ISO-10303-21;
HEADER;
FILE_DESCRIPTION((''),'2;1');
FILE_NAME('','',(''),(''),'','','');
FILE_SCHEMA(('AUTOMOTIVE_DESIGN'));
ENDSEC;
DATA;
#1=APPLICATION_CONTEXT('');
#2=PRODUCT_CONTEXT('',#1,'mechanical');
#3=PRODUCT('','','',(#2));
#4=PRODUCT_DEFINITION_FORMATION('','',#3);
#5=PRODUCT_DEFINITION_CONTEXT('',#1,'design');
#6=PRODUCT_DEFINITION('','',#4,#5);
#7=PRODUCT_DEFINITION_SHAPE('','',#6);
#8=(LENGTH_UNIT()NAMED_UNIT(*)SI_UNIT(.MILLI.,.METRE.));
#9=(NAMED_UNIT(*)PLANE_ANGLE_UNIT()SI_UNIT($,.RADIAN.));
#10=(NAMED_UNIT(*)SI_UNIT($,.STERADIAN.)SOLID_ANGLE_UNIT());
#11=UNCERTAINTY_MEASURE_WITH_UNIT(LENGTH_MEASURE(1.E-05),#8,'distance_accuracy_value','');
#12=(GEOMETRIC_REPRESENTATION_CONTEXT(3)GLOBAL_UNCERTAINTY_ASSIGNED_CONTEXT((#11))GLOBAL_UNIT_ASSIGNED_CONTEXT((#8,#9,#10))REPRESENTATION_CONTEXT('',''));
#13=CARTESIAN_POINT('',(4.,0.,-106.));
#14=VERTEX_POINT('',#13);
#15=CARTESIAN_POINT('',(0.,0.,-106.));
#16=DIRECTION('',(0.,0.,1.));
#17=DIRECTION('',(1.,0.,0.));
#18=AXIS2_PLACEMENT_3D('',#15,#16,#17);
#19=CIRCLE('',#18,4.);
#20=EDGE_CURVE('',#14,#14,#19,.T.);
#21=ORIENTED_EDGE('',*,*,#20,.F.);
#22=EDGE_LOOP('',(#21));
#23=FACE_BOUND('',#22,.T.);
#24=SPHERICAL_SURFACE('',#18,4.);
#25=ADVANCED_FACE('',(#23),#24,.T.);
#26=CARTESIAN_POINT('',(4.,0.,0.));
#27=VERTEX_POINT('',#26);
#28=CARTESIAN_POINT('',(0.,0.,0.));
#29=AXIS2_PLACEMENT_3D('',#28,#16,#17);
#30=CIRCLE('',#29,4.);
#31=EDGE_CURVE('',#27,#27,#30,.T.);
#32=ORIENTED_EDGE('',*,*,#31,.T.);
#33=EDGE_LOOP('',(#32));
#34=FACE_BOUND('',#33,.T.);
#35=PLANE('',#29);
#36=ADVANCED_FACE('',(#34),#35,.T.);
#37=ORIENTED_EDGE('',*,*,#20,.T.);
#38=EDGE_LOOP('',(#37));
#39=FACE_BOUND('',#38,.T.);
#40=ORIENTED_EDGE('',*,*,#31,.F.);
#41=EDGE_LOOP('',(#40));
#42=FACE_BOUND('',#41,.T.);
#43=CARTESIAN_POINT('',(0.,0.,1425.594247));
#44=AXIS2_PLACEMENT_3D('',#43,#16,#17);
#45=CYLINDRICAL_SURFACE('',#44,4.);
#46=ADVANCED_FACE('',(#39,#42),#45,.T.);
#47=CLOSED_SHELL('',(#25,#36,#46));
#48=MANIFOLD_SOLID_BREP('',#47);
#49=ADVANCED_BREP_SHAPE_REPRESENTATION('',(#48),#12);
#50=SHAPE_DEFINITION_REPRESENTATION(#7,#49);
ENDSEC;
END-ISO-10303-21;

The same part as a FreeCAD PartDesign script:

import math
import FreeCAD as App
import Part
import Sketcher
from FreeCAD import Vector

doc = App.newDocument("Part")
params = doc.addObject("Spreadsheet::Sheet", "Params")
for row, (alias, value) in enumerate([
    ("sketch1_radius", "4 mm"),
    ("sketch1_height", "110 mm"),
    ("revolution_angle", "360 deg"),
], start=1):
    params.set(f"A{row}", alias)
    params.set(f"B{row}", "=" + value)
    params.setAlias(f"B{row}", alias)

body = doc.addObject("PartDesign::Body", "Body")

# Sketch on XZ plane
sketch1 = body.newObject("Sketcher::SketchObject", "Sketch")
sketch1.AttachmentSupport = (doc.getObject("XZ_Plane"), [""])
sketch1.MapMode = "FlatFace"
sketch1.addGeometry([
    Part.LineSegment(Vector(0, -110, 0), Vector(0, 0, 0)),
    Part.LineSegment(Vector(0, 0, 0), Vector(4, 0, 0)),
    Part.LineSegment(Vector(4, 0, 0), Vector(4, -106, 0)),
    Part.ArcOfCircle(Part.Circle(Vector(0, -106, 0), Vector(0, 0, 1), 4), math.radians(-90), math.radians(0)),
], False)
sketch1.addConstraint([
    Sketcher.Constraint("Coincident", 0, 2, 1, 1),
    Sketcher.Constraint("Coincident", 1, 2, 2, 1),
    Sketcher.Constraint("Tangent", 2, 2, 3, 2),
    Sketcher.Constraint("Coincident", 3, 1, 0, 1),
    Sketcher.Constraint("Vertical", 0),
    Sketcher.Constraint("Horizontal", 1),
    Sketcher.Constraint("Vertical", 2),
    Sketcher.Constraint("Coincident", 0, 2, -1, 1),
    Sketcher.Constraint("PointOnObject", 3, 3, -2),
    Sketcher.Constraint("Radius", 3, 4.0),
    Sketcher.Constraint("DistanceY", 0, 1, 0, 2, 110.0),
])
sketch1.setExpression("Constraints[9]", "Params.sketch1_radius")
sketch1.setExpression("Constraints[10]", "Params.sketch1_height")
revolution = body.newObject("PartDesign::Revolution", "Revolution")
revolution.Profile = sketch1
revolution.ReferenceAxis = (sketch1, ["V_Axis"])
revolution.setExpression("Angle", "Params.revolution_angle")

doc.recompute()
